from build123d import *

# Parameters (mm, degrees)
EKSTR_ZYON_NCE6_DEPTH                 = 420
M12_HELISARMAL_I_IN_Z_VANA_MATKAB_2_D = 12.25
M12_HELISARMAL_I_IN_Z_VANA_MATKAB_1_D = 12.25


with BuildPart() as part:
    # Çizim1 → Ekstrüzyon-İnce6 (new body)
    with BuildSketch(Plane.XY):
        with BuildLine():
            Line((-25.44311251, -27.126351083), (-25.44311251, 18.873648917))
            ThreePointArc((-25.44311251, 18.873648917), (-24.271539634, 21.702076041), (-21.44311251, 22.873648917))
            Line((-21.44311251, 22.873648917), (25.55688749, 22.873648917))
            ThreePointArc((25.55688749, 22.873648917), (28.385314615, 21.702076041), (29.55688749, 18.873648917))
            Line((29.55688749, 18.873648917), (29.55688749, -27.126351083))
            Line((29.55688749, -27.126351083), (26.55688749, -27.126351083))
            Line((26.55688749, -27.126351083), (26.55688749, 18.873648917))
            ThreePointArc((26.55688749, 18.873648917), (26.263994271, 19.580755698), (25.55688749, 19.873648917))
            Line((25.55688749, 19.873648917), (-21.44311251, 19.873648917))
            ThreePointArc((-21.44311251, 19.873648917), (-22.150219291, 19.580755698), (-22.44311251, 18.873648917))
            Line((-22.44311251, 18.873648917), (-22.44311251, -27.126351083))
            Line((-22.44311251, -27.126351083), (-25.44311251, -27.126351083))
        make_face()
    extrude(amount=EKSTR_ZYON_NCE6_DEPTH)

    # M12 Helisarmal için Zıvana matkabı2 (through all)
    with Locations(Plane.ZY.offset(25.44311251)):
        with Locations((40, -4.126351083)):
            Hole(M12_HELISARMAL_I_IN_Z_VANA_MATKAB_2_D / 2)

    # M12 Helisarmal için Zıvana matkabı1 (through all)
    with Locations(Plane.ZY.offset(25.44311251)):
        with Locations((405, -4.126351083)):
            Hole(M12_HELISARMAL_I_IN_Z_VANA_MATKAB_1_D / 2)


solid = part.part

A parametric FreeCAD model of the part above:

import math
import FreeCAD as App
import Part
import Sketcher
from FreeCAD import Vector
Q = App.Units.Quantity

doc = App.newDocument("Part")
body = doc.addObject("PartDesign::Body", "Body")

# Sketch on XY plane
sketch1 = doc.addObject("Sketcher::SketchObject", "Sketch")
body.addObject(sketch1)
sketch1.AttachmentSupport = (doc.XY_Plane, [""])
sketch1.MapMode = "FlatFace"
sketch1.addGeometry([
    Part.LineSegment(Vector(-25.4, 18.9, 0), Vector(-25.4, -27.1, 0)),  # 0
    Part.LineSegment(Vector(-25.4, -27.1, 0), Vector(-22.4, -27.1, 0)),  # 1
    Part.LineSegment(Vector(-22.4, -27.1, 0), Vector(-22.4, 18.9, 0)),  # 2
    Part.ArcOfCircle(Part.Circle(Vector(-21.4, 18.9, 0), Vector(0, 0, 1), 1), math.radians(90), math.radians(180)),  # 3
    Part.LineSegment(Vector(-21.4, 19.9, 0), Vector(25.6, 19.9, 0)),  # 4
    Part.ArcOfCircle(Part.Circle(Vector(25.6, 18.9, 0), Vector(0, 0, 1), 1), math.radians(0), math.radians(90)),  # 5
    Part.LineSegment(Vector(26.6, 18.9, 0), Vector(26.6, -27.1, 0)),  # 6
    Part.LineSegment(Vector(26.6, -27.1, 0), Vector(29.6, -27.1, 0)),  # 7
    Part.LineSegment(Vector(29.6, -27.1, 0), Vector(29.6, 18.9, 0)),  # 8
    Part.ArcOfCircle(Part.Circle(Vector(25.6, 18.9, 0), Vector(0, 0, 1), 4), math.radians(0), math.radians(90)),  # 9
    Part.LineSegment(Vector(25.6, 22.9, 0), Vector(-21.4, 22.9, 0)),  # 10
    Part.ArcOfCircle(Part.Circle(Vector(-21.4, 18.9, 0), Vector(0, 0, 1), 4), math.radians(90), math.radians(180)),  # 11
], False)
sketch1.addConstraint([
    Sketcher.Constraint("Coincident", 0, 2, 1, 1),
    Sketcher.Constraint("Coincident", 1, 2, 2, 1),
    Sketcher.Constraint("Tangent", 2, 2, 3, 2),
    Sketcher.Constraint("Tangent", 3, 1, 4, 1),
    Sketcher.Constraint("Tangent", 4, 2, 5, 2),
    Sketcher.Constraint("Tangent", 5, 1, 6, 1),
    Sketcher.Constraint("Coincident", 6, 2, 7, 1),
    Sketcher.Constraint("Coincident", 7, 2, 8, 1),
    Sketcher.Constraint("Tangent", 8, 2, 9, 1),
    Sketcher.Constraint("Tangent", 9, 2, 10, 1),
    Sketcher.Constraint("Tangent", 10, 2, 11, 1),
    Sketcher.Constraint("Tangent", 11, 2, 0, 1),
    Sketcher.Constraint("Vertical", 0),
    Sketcher.Constraint("Horizontal", 1),
    Sketcher.Constraint("Vertical", 2),
    Sketcher.Constraint("Horizontal", 4),
    Sketcher.Constraint("Vertical", 6),
    Sketcher.Constraint("Horizontal", 7),
    Sketcher.Constraint("Vertical", 8),
    Sketcher.Constraint("Horizontal", 10),
    Sketcher.Constraint("Coincident", 9, 3, 5, 3),
    Sketcher.Constraint("Coincident", 11, 3, 3, 3),
    Sketcher.Constraint("Equal", 3, 5),
    Sketcher.Constraint("Horizontal", 1, 2, 6, 2),
    Sketcher.Constraint("Radius", 3, Q("1 mm")),
    Sketcher.Constraint("Radius", 9, Q("4 mm")),
    Sketcher.Constraint("DistanceX", 4, 1, 4, 2, Q("47 mm")),
    Sketcher.Constraint("DistanceY", 0, 2, 0, 1, Q("46 mm")),
    Sketcher.Constraint("DistanceY", -1, 1, 3, 3, Q("18.873649 mm")),
    Sketcher.Constraint("DistanceX", 3, 3, -1, 1, Q("21.443113 mm")),
])
pad1 = doc.addObject("PartDesign::Pad", "Pad")
body.addObject(pad1)
pad1.Profile = sketch1
pad1.Length = 420

# Sketch on YZ plane
sketch2 = doc.addObject("Sketcher::SketchObject", "Sketch001")
body.addObject(sketch2)
sketch2.AttachmentSupport = (doc.YZ_Plane, [""])
sketch2.MapMode = "FlatFace"
sketch2.AttachmentOffset = App.Placement(Vector(0, 0, -25.443113), App.Rotation())
sketch2.addGeometry(Part.Circle(Vector(-4, 40, 0), Vector(0, 0, 1), 6), False)
sketch2.addConstraint([
    Sketcher.Constraint("Diameter", 0, Q("12.25 mm")),
    Sketcher.Constraint("DistanceY", -1, 1, 0, 3, Q("40 mm")),
    Sketcher.Constraint("DistanceX", 0, 3, -1, 1, Q("4.126351 mm")),
])
doc.recompute()
hole = doc.addObject("PartDesign::Hole", "Hole")
body.addObject(hole)
hole.Profile = sketch2
hole.ThreadType = "None"
hole.Diameter = 12.25
hole.DepthType = "ThroughAll"
hole.Reversed = True

# Sketch on YZ plane
sketch3 = doc.addObject("Sketcher::SketchObject", "Sketch002")
body.addObject(sketch3)
sketch3.AttachmentSupport = (doc.YZ_Plane, [""])
sketch3.MapMode = "FlatFace"
sketch3.AttachmentOffset = App.Placement(Vector(0, 0, -25.443113), App.Rotation())
sketch3.addGeometry(Part.Circle(Vector(-4, 405, 0), Vector(0, 0, 1), 6), False)
sketch3.addConstraint([
    Sketcher.Constraint("Diameter", 0, Q("12.25 mm")),
    Sketcher.Constraint("DistanceY", -1, 1, 0, 3, Q("405 mm")),
    Sketcher.Constraint("DistanceX", 0, 3, -1, 1, Q("4.126351 mm")),
])
doc.recompute()
hole2 = doc.addObject("PartDesign::Hole", "Hole001")
body.addObject(hole2)
hole2.Profile = sketch3
hole2.ThreadType = "None"
hole2.Diameter = 12.25
hole2.DepthType = "ThroughAll"
hole2.Reversed = True

doc.recompute()
